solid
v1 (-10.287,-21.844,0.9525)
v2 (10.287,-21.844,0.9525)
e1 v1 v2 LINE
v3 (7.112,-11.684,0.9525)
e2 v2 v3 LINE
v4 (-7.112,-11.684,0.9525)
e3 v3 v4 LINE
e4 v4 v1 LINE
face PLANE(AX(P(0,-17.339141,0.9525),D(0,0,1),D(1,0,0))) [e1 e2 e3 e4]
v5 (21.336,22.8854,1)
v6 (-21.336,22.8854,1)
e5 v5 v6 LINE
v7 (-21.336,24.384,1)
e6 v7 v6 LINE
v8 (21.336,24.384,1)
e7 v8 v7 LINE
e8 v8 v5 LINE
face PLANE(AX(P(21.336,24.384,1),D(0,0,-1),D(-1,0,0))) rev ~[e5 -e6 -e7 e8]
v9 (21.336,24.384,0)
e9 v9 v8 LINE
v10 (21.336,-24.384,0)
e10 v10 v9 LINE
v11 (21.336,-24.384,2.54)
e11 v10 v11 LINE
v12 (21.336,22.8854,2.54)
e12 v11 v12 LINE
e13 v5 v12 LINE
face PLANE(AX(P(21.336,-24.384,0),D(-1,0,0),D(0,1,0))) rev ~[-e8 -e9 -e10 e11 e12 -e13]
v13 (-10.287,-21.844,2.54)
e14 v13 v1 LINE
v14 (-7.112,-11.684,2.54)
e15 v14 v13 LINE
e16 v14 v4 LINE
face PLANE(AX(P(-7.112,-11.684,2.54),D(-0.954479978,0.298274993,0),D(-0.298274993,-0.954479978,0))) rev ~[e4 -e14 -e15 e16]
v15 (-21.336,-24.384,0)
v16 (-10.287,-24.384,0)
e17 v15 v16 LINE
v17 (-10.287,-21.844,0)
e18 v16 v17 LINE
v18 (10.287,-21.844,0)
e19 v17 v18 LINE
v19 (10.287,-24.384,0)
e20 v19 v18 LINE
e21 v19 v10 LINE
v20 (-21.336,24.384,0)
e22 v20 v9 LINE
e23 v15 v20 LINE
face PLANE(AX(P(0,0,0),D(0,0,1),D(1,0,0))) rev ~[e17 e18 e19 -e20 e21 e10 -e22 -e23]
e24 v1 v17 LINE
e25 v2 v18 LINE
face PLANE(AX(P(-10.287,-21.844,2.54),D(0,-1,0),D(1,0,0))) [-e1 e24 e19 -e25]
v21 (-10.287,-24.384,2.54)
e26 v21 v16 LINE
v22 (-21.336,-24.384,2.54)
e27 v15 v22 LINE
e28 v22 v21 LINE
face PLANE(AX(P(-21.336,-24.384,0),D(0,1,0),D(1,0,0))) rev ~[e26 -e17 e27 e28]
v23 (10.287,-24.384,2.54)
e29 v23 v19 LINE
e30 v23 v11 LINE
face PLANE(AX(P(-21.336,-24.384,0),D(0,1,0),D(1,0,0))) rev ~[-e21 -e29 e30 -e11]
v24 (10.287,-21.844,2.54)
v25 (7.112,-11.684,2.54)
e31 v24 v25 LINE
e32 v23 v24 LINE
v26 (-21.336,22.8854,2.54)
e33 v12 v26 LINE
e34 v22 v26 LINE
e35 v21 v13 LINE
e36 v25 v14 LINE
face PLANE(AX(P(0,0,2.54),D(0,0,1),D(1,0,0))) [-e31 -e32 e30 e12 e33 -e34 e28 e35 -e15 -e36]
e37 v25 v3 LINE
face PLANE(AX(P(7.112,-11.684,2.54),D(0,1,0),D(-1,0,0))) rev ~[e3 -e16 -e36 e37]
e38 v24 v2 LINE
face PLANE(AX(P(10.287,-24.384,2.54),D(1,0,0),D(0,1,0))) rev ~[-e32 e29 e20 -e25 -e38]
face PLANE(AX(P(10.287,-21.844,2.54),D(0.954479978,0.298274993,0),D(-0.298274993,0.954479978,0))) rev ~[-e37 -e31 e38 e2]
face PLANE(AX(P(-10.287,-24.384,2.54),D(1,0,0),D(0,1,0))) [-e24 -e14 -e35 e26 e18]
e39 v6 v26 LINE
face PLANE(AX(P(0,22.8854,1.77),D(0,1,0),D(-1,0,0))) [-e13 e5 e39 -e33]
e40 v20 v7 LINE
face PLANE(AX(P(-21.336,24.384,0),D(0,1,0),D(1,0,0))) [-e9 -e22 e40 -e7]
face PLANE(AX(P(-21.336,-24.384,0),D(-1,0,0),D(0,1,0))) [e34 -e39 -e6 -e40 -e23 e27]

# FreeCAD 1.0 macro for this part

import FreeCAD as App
import Part
import Sketcher

V = App.Vector
Q = App.Units.Quantity


def add_polygon(sketch, points):
    """Adds a closed chain of lines whose ends are joined by coincident constraints."""
    first, n = sketch.GeometryCount, len(points)
    for a, b in zip(points, points[1:] + points[:1]):
        sketch.addGeometry(Part.LineSegment(App.Vector(*a, 0), App.Vector(*b, 0)), False)
    for i in range(n):
        sketch.addConstraint(Sketcher.Constraint("Coincident", first + i, 2, first + (i + 1) % n, 1))

doc = App.newDocument("Part")
params = doc.addObject("Spreadsheet::Sheet", "Params")
for row, (alias, value) in enumerate([
    ("sketch1_width", "1.68 in"),
    ("sketch1_height", "1.92 in"),
    ("pad1_length", "0.1 in"),
    ("sketch2_width", "1.68 in"),
    ("pocket1_length", "0.059 in"),
    ("sketch3_height", "0.1 in"),
    ("sketch3_width", "0.81 in"),
    ("pocket2_length", "0.2 in"),
    ("sketch4_width", "0.81 in"),
    ("sketch4_width2", "0.56 in"),
    ("pocket3_length", "0.0625 in"),
], start=1):
    params.set(f"A{row}", alias)
    params.set(f"B{row}", "=" + value)
    params.setAlias(f"B{row}", alias)

body = doc.addObject("PartDesign::Body", "Body")

# Sketch on XY plane
sketch1 = doc.addObject("Sketcher::SketchObject", "Sketch")
body.addObject(sketch1)
sketch1.AttachmentSupport = (doc.XY_Plane, [""])
sketch1.MapMode = "FlatFace"
add_polygon(sketch1, [(-21.336, 24.384), (-21.336, -24.384), (21.336, -24.384), (21.336, 24.384)])  # lines 0-3
sketch1.addConstraint(Sketcher.Constraint("Vertical", 0))
sketch1.addConstraint(Sketcher.Constraint("Horizontal", 1))
sketch1.addConstraint(Sketcher.Constraint("Vertical", 2))
sketch1.addConstraint(Sketcher.Constraint("Horizontal", 3))
sketch1.addConstraint(Sketcher.Constraint("Symmetric", 0, 2, 2, 2, -1, 1))
sketch1.addConstraint(Sketcher.Constraint("DistanceX", 1, 1, 1, 2, Q("1.68 in")))
sketch1.addConstraint(Sketcher.Constraint("DistanceY", 0, 2, 0, 1, Q("1.92 in")))
sketch1.setExpression("Constraints[9]", "Params.sketch1_width")
sketch1.setExpression("Constraints[10]", "Params.sketch1_height")
pad1 = doc.addObject("PartDesign::Pad", "Pad")
body.addObject(pad1)
pad1.Profile = sketch1
pad1.setExpression("Length", "Params.pad1_length")

# Sketch on XZ plane
sketch2 = doc.addObject("Sketcher::SketchObject", "Sketch001")
body.addObject(sketch2)
sketch2.AttachmentSupport = (doc.XZ_Plane, [""])
sketch2.MapMode = "FlatFace"
sketch2.AttachmentOffset = App.Placement(V(0, 0, -0.96 * 25.4), App.Rotation())
add_polygon(sketch2, [(21.336, 2.54), (21.336, 1), (-21.336, 1), (-21.336, 2.54)])  # lines 0-3
sketch2.addConstraint(Sketcher.Constraint("Vertical", 0))
sketch2.addConstraint(Sketcher.Constraint("Horizontal", 1))
sketch2.addConstraint(Sketcher.Constraint("Vertical", 2))
sketch2.addConstraint(Sketcher.Constraint("Horizontal", 3))
sketch2.addConstraint(Sketcher.Constraint("DistanceX", 1, 2, 1, 1, Q("1.68 in")))
sketch2.addConstraint(Sketcher.Constraint("DistanceY", -1, 1, 2, 2, Q("0.1 in")))
sketch2.addConstraint(Sketcher.Constraint("DistanceX", -1, 1, 0, 2, Q("0.84 in")))
sketch2.addConstraint(Sketcher.Constraint("DistanceY", 0, 2, 0, 1, Q("1.54 mm")))
sketch2.setExpression("Constraints[8]", "Params.sketch2_width")
pocket1 = doc.addObject("PartDesign::Pocket", "Pocket")
body.addObject(pocket1)
pocket1.Profile = sketch2
pocket1.setExpression("Length", "Params.pocket1_length")
pocket1.Reversed = True

# Sketch on XY plane
sketch3 = doc.addObject("Sketcher::SketchObject", "Sketch002")
body.addObject(sketch3)
sketch3.AttachmentSupport = (doc.XY_Plane, [""])
sketch3.MapMode = "FlatFace"
sketch3.AttachmentOffset = App.Placement(V(0, 0, 0.1 * 25.4), App.Rotation())
add_polygon(sketch3, [(-10.287, -21.844), (-10.287, -24.384), (10.287, -24.384), (10.287, -21.844)])  # lines 0-3
sketch3.addConstraint(Sketcher.Constraint("Vertical", 0))
sketch3.addConstraint(Sketcher.Constraint("Horizontal", 1))
sketch3.addConstraint(Sketcher.Constraint("Vertical", 2))
sketch3.addConstraint(Sketcher.Constraint("Horizontal", 3))
sketch3.addConstraint(Sketcher.Constraint("DistanceY", 0, 2, 0, 1, Q("0.1 in")))
sketch3.addConstraint(Sketcher.Constraint("DistanceX", 1, 1, 1, 2, Q("0.81 in")))
sketch3.addConstraint(Sketcher.Constraint("DistanceY", 0, 2, -1, 1, Q("0.96 in")))
sketch3.addConstraint(Sketcher.Constraint("DistanceX", 0, 2, -1, 1, Q("0.405 in")))
sketch3.setExpression("Constraints[8]", "Params.sketch3_height")
sketch3.setExpression("Constraints[9]", "Params.sketch3_width")
pocket2 = doc.addObject("PartDesign::Pocket", "Pocket001")
body.addObject(pocket2)
pocket2.Profile = sketch3
pocket2.setExpression("Length", "Params.pocket2_length")

# Sketch on XY plane
sketch4 = doc.addObject("Sketcher::SketchObject", "Sketch003")
body.addObject(sketch4)
sketch4.AttachmentSupport = (doc.XY_Plane, [""])
sketch4.MapMode = "FlatFace"
sketch4.AttachmentOffset = App.Placement(V(0, 0, 0.1 * 25.4), App.Rotation())
add_polygon(sketch4, [(-7.112, -11.684), (-10.287, -21.844), (10.287, -21.844), (7.112, -11.684)])  # lines 0-3
sketch4.addConstraint(Sketcher.Constraint("Horizontal", 1))
sketch4.addConstraint(Sketcher.Constraint("Horizontal", 3))
sketch4.addConstraint(Sketcher.Constraint("Equal", 0, 2))
sketch4.addConstraint(Sketcher.Constraint("DistanceX", 1, 1, 1, 2, Q("0.81 in")))
sketch4.addConstraint(Sketcher.Constraint("DistanceX", 3, 2, 3, 1, Q("0.56 in")))
sketch4.addConstraint(Sketcher.Constraint("DistanceY", 1, 2, 2, 2, Q("0.4 in")))
sketch4.addConstraint(Sketcher.Constraint("DistanceY", 0, 2, -1, 1, Q("0.86 in")))
sketch4.addConstraint(Sketcher.Constraint("DistanceX", -1, 1, 2, 2, Q("0.28 in")))
sketch4.setExpression("Constraints[7]", "Params.sketch4_width")
sketch4.setExpression("Constraints[8]", "Params.sketch4_width2")
pocket3 = doc.addObject("PartDesign::Pocket", "Pocket002")
body.addObject(pocket3)
pocket3.Profile = sketch4
pocket3.setExpression("Length", "Params.pocket3_length")

doc.recompute()
